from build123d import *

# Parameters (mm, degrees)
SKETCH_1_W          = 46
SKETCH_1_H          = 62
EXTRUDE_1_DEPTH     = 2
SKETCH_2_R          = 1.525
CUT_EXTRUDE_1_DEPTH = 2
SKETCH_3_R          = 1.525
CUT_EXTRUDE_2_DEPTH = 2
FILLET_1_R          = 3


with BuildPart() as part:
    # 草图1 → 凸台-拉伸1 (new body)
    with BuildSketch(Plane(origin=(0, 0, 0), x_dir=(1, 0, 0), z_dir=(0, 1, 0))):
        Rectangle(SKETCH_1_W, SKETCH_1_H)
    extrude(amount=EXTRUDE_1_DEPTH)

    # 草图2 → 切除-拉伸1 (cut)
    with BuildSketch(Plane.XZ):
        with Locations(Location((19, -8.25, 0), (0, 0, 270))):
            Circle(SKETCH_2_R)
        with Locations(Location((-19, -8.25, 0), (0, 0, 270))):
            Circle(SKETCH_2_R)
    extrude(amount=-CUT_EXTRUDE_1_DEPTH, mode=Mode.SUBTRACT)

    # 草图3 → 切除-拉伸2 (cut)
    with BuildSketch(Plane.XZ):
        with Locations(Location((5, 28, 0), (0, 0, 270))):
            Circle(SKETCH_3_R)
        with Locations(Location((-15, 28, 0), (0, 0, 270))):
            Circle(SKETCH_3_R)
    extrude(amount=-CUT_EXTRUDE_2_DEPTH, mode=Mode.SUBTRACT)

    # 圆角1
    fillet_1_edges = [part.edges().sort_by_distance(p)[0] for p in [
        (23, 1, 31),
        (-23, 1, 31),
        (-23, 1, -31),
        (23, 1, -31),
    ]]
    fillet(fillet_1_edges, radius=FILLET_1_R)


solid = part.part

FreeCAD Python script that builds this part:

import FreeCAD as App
import Part
import Sketcher
Q = App.Units.Quantity


def edges_at(feature, points):
    """Names of the edges that pass closest to the given points."""
    edges = feature.Shape.Edges
    near = lambda p: min(range(len(edges)), key=lambda i: edges[i].distToShape(Part.Vertex(*p))[0])
    return sorted({f"Edge{near(p) + 1}" for p in points})

doc = App.newDocument("Part")
body = doc.addObject("PartDesign::Body", "Body")

sketch1 = doc.addObject("Sketcher::SketchObject", "Sketch")
body.addObject(sketch1)
sketch1.AttachmentSupport = (doc.XZ_Plane, [""])
sketch1.MapMode = "FlatFace"
sketch1.addGeometry([
    Part.LineSegment(App.Vector(-23, -31, 0), App.Vector(-23, 31, 0)),
    Part.LineSegment(App.Vector(-23, 31, 0), App.Vector(23, 31, 0)),
    Part.LineSegment(App.Vector(23, 31, 0), App.Vector(23, -31, 0)),
    Part.LineSegment(App.Vector(23, -31, 0), App.Vector(-23, -31, 0)),
], False)
sketch1.addConstraint([
    Sketcher.Constraint("Coincident", 0, 2, 1, 1),
    Sketcher.Constraint("Coincident", 1, 2, 2, 1),
    Sketcher.Constraint("Coincident", 2, 2, 3, 1),
    Sketcher.Constraint("Coincident", 3, 2, 0, 1),
    Sketcher.Constraint("Vertical", 0),
    Sketcher.Constraint("Horizontal", 1),
    Sketcher.Constraint("Vertical", 2),
    Sketcher.Constraint("Horizontal", 3),
    Sketcher.Constraint("Symmetric", 0, 2, 2, 2, -1, 1),
    Sketcher.Constraint("DistanceX", 1, 1, 1, 2, Q("46 mm")),
    Sketcher.Constraint("DistanceY", 0, 1, 0, 2, Q("62 mm")),
])
pad1 = doc.addObject("PartDesign::Pad", "Pad")
body.addObject(pad1)
pad1.Profile = sketch1
pad1.Length = 2
pad1.Reversed = True

sketch2 = doc.addObject("Sketcher::SketchObject", "Sketch001")
body.addObject(sketch2)
sketch2.AttachmentSupport = (doc.XZ_Plane, [""])
sketch2.MapMode = "FlatFace"
sketch2.addGeometry([
    Part.Circle(App.Vector(19, -8.2, 0), App.Vector(0, 0, 1), 1.5),
    Part.Circle(App.Vector(-19, -8.2, 0), App.Vector(0, 0, 1), 1.5),
], False)
sketch2.addConstraint([
    Sketcher.Constraint("Equal", 0, 1),
    Sketcher.Constraint("Symmetric", 0, 3, 1, 3, -2),
    Sketcher.Constraint("Diameter", 0, Q("3.05 mm")),
    Sketcher.Constraint("DistanceX", -1, 1, 0, 3, Q("19 mm")),
    Sketcher.Constraint("DistanceY", 0, 3, -1, 1, Q("8.25 mm")),
])
pocket1 = doc.addObject("PartDesign::Pocket", "Pocket")
body.addObject(pocket1)
pocket1.Profile = sketch2
pocket1.Length = 2

sketch3 = doc.addObject("Sketcher::SketchObject", "Sketch002")
body.addObject(sketch3)
sketch3.AttachmentSupport = (doc.XZ_Plane, [""])
sketch3.MapMode = "FlatFace"
sketch3.addGeometry([
    Part.Circle(App.Vector(5, 28, 0), App.Vector(0, 0, 1), 1.5),
    Part.Circle(App.Vector(-15, 28, 0), App.Vector(0, 0, 1), 1.5),
], False)
sketch3.addConstraint([
    Sketcher.Constraint("Equal", 0, 1),
    Sketcher.Constraint("Horizontal", 0, 3, 1, 3),
    Sketcher.Constraint("Diameter", 0, Q("3.05 mm")),
    Sketcher.Constraint("DistanceX", -1, 1, 0, 3, Q("5 mm")),
    Sketcher.Constraint("DistanceY", -1, 1, 0, 3, Q("28 mm")),
    Sketcher.Constraint("DistanceX", 1, 3, -1, 1, Q("15 mm")),
])
pocket2 = doc.addObject("PartDesign::Pocket", "Pocket001")
body.addObject(pocket2)
pocket2.Profile = sketch3
pocket2.Length = 2
doc.recompute()

fillet = doc.addObject("PartDesign::Fillet", "Fillet")
body.addObject(fillet)
fillet.Base = (pocket2, edges_at(pocket2, [
    (23, 1, 31),
    (-23, 1, 31),
    (-23, 1, -31),
    (23, 1, -31),
]))
fillet.Radius = 3

doc.recompute()
